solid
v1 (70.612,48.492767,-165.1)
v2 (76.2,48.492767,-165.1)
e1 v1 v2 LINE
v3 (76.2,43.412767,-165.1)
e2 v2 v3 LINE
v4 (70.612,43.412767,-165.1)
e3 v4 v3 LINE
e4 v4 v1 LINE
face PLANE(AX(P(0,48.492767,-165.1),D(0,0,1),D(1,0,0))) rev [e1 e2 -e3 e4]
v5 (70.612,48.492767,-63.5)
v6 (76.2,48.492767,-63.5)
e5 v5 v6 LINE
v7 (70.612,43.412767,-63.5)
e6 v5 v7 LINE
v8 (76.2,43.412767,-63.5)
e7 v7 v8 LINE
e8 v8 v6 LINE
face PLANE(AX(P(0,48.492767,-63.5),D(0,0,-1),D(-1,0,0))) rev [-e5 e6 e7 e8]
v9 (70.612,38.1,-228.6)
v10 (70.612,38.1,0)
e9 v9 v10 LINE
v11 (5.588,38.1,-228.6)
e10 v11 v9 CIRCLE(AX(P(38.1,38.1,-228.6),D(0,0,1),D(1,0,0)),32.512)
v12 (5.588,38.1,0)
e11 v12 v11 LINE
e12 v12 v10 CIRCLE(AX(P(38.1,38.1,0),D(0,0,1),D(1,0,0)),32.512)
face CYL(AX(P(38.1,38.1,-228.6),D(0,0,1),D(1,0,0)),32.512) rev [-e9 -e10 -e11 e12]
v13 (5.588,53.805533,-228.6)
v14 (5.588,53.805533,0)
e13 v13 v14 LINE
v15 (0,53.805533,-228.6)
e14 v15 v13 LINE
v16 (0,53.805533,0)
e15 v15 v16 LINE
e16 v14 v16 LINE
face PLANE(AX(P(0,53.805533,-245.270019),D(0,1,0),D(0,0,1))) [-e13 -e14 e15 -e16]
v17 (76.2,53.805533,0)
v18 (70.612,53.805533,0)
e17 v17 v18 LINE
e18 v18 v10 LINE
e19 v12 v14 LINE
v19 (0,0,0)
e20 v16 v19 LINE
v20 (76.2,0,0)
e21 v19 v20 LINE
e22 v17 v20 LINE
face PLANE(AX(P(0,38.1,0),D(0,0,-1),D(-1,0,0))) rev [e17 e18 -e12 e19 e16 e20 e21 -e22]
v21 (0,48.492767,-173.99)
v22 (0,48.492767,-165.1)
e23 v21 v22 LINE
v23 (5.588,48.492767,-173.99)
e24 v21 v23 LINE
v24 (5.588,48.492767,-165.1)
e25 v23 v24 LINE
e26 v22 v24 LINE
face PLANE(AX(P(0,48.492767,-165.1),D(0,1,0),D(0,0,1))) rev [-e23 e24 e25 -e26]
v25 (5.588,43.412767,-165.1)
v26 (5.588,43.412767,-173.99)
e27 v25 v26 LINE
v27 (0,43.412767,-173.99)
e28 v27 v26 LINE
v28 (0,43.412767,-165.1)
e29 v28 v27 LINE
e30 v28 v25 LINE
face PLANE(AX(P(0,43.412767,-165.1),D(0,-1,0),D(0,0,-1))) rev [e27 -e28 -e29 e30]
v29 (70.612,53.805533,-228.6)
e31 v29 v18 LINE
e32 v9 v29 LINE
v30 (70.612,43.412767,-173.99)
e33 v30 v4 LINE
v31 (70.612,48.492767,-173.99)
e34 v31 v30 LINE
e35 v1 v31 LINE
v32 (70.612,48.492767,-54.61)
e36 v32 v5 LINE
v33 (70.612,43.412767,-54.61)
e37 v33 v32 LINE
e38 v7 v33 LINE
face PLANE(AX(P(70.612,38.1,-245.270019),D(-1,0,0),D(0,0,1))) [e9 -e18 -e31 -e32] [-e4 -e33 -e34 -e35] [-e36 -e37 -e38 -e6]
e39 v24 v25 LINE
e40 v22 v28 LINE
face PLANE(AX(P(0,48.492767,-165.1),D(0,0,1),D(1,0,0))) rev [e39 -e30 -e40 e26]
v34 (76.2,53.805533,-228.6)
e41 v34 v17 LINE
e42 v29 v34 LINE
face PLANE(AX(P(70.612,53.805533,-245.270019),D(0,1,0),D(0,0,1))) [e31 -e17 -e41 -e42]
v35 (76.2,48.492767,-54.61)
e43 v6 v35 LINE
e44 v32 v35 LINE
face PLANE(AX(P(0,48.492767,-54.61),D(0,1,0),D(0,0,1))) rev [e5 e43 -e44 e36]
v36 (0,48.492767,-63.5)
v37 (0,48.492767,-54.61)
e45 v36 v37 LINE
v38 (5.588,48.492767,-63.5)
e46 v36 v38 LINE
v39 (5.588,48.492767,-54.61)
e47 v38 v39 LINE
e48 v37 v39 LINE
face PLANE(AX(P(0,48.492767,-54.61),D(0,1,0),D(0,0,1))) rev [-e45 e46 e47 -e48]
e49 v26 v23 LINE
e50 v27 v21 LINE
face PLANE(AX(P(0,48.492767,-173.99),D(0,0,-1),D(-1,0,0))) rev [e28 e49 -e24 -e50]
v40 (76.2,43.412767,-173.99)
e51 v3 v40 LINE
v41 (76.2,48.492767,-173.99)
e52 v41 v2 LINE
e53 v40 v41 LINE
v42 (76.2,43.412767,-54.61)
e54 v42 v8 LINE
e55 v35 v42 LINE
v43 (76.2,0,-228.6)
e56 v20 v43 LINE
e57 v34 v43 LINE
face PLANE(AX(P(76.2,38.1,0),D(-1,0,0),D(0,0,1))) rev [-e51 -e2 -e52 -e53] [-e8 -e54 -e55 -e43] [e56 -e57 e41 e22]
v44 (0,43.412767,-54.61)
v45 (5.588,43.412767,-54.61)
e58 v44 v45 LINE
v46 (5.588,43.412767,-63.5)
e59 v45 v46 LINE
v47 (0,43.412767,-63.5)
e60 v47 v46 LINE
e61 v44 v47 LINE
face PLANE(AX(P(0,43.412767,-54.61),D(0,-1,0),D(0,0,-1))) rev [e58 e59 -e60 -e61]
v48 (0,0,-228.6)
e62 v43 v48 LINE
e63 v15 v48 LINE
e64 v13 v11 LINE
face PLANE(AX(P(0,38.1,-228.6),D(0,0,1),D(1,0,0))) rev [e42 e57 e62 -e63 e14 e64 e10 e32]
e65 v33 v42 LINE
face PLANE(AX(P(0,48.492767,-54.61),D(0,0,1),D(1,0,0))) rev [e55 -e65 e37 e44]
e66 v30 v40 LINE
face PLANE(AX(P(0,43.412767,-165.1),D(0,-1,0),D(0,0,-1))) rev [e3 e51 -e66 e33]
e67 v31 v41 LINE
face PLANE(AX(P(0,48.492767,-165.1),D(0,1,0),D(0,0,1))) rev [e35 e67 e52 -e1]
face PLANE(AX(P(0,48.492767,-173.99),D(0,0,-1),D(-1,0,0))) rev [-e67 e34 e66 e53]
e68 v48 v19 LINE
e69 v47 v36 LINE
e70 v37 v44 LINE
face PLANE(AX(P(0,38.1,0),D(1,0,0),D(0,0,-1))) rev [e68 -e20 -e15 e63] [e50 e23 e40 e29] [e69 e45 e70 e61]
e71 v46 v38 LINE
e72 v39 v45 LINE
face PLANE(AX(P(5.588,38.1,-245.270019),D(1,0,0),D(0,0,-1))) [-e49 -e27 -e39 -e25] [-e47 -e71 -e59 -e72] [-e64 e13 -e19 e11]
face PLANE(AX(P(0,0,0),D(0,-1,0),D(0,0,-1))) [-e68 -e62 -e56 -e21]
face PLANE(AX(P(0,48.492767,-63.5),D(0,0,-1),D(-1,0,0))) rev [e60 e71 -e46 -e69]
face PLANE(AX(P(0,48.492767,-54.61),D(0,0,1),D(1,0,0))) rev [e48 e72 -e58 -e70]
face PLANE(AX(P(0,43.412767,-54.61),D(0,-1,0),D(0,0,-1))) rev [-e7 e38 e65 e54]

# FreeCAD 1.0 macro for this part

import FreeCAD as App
import Part
import Sketcher
Q = App.Units.Quantity


def add_polygon(sketch, points):
    """Adds a closed chain of lines whose ends are joined by coincident constraints."""
    first, n = sketch.GeometryCount, len(points)
    for a, b in zip(points, points[1:] + points[:1]):
        sketch.addGeometry(Part.LineSegment(App.Vector(*a, 0), App.Vector(*b, 0)), False)
    for i in range(n):
        sketch.addConstraint(Sketcher.Constraint("Coincident", first + i, 2, first + (i + 1) % n, 1))

doc = App.newDocument("Part")
body = doc.addObject("PartDesign::Body", "Body")

# Sketch on XZ plane
sketch1 = body.newObject("Sketcher::SketchObject", "Sketch")
sketch1.AttachmentSupport = (doc.getObject("XZ_Plane"), [""])
sketch1.MapMode = "FlatFace"
add_polygon(sketch1, [(0, -229), (0, 0), (76, 0), (76, -229)])  # lines 0-3
sketch1.addConstraint([
    Sketcher.Constraint("Vertical", 0),
    Sketcher.Constraint("Horizontal", 1),
    Sketcher.Constraint("Vertical", 2),
    Sketcher.Constraint("Horizontal", 3),
    Sketcher.Constraint("Coincident", 0, 2, -1, 1),
    Sketcher.Constraint("DistanceX", 1, 1, 1, 2, Q("3 in")),
    Sketcher.Constraint("DistanceY", 0, 1, 0, 2, Q("9 in")),
])
pad1 = body.newObject("PartDesign::Pad", "Pad")
pad1.Profile = sketch1
pad1.Length = Q("1.5 in")
pad1.Reversed = True

# Sketch on XY plane
sketch2 = body.newObject("Sketcher::SketchObject", "Sketch001")
sketch2.AttachmentSupport = (doc.getObject("XY_Plane"), [""])
sketch2.MapMode = "FlatFace"
sketch2.addGeometry(Part.Circle(App.Vector(38, 38, 0), App.Vector(0, 0, 1), 33), False)
sketch2.addConstraint([
    Sketcher.Constraint("Diameter", 0, Q("2.56 in")),
    Sketcher.Constraint("DistanceX", -1, 1, 0, 3, Q("1.5 in")),
    Sketcher.Constraint("DistanceY", -1, 1, 0, 3, Q("1.5 in")),
])
pocket1 = body.newObject("PartDesign::Pocket", "Pocket")
pocket1.Profile = sketch2
pocket1.Type = "ThroughAll"

# Sketch on XY plane
sketch3 = body.newObject("Sketcher::SketchObject", "Sketch002")
sketch3.AttachmentSupport = (doc.getObject("XY_Plane"), [""])
sketch3.MapMode = "FlatFace"
add_polygon(sketch3, [(0, 54), (0, 38), (6, 38), (6, 54)])  # lines 0-3
add_polygon(sketch3, [(71, 54), (71, 38), (76, 38), (76, 54)])  # lines 4-7
sketch3.addConstraint([
    Sketcher.Constraint("Vertical", 0),
    Sketcher.Constraint("Horizontal", 1),
    Sketcher.Constraint("Vertical", 2),
    Sketcher.Constraint("Horizontal", 3),
    Sketcher.Constraint("Vertical", 4),
    Sketcher.Constraint("Horizontal", 5),
    Sketcher.Constraint("Vertical", 6),
    Sketcher.Constraint("Horizontal", 7),
    Sketcher.Constraint("PointOnObject", 0, 2, -2),
    Sketcher.Constraint("Horizontal", 1, 2, 4, 2),
    Sketcher.Constraint("Horizontal", 3, 2, 6, 2),
    Sketcher.Constraint("Equal", 3, 5),
    Sketcher.Constraint("DistanceX", -1, 1, 5, 2, Q("3 in")),
    Sketcher.Constraint("DistanceX", 1, 1, 1, 2, Q("0.22 in")),
    Sketcher.Constraint("DistanceY", -1, 1, 0, 2, Q("1.5 in")),
    Sketcher.Constraint("DistanceY", 0, 2, 0, 1, 15.705533),
])
pad2 = body.newObject("PartDesign::Pad", "Pad001")
pad2.Profile = sketch3
pad2.Length = Q("9 in")
pad2.Reversed = True

# Sketch on YZ plane
sketch4 = body.newObject("Sketcher::SketchObject", "Sketch003")
sketch4.AttachmentSupport = (doc.getObject("YZ_Plane"), [""])
sketch4.MapMode = "FlatFace"
sketch4.AttachmentOffset = App.Placement(App.Vector(0, 0, 3 * 25.4), App.Rotation())
add_polygon(sketch4, [(48, -55), (43, -55), (43, -64), (48, -64)])  # lines 0-3
add_polygon(sketch4, [(48, -165), (43, -165), (43, -174), (48, -174)])  # lines 4-7
sketch4.addConstraint([
    Sketcher.Constraint("Horizontal", 0),
    Sketcher.Constraint("Vertical", 1),
    Sketcher.Constraint("Horizontal", 2),
    Sketcher.Constraint("Vertical", 3),
    Sketcher.Constraint("Horizontal", 4),
    Sketcher.Constraint("Vertical", 5),
    Sketcher.Constraint("Horizontal", 6),
    Sketcher.Constraint("Vertical", 7),
    Sketcher.Constraint("Vertical", 1, 2, 4, 2),
    Sketcher.Constraint("Vertical", 3, 2, 6, 2),
    Sketcher.Constraint("Equal", 3, 5),
    Sketcher.Constraint("DistanceX", 0, 2, 0, 1, Q("0.2 in")),
    Sketcher.Constraint("DistanceY", 4, 2, 1, 2, Q("4 in")),
    Sketcher.Constraint("DistanceY", 1, 2, 1, 1, Q("0.35 in")),
    Sketcher.Constraint("DistanceY", 1, 2, -1, 1, Q("2.5 in")),
    Sketcher.Constraint("DistanceX", -1, 1, 0, 2, 43.412767),
])
pocket2 = body.newObject("PartDesign::Pocket", "Pocket001")
pocket2.Profile = sketch4
pocket2.Type = "ThroughAll"

doc.recompute()
